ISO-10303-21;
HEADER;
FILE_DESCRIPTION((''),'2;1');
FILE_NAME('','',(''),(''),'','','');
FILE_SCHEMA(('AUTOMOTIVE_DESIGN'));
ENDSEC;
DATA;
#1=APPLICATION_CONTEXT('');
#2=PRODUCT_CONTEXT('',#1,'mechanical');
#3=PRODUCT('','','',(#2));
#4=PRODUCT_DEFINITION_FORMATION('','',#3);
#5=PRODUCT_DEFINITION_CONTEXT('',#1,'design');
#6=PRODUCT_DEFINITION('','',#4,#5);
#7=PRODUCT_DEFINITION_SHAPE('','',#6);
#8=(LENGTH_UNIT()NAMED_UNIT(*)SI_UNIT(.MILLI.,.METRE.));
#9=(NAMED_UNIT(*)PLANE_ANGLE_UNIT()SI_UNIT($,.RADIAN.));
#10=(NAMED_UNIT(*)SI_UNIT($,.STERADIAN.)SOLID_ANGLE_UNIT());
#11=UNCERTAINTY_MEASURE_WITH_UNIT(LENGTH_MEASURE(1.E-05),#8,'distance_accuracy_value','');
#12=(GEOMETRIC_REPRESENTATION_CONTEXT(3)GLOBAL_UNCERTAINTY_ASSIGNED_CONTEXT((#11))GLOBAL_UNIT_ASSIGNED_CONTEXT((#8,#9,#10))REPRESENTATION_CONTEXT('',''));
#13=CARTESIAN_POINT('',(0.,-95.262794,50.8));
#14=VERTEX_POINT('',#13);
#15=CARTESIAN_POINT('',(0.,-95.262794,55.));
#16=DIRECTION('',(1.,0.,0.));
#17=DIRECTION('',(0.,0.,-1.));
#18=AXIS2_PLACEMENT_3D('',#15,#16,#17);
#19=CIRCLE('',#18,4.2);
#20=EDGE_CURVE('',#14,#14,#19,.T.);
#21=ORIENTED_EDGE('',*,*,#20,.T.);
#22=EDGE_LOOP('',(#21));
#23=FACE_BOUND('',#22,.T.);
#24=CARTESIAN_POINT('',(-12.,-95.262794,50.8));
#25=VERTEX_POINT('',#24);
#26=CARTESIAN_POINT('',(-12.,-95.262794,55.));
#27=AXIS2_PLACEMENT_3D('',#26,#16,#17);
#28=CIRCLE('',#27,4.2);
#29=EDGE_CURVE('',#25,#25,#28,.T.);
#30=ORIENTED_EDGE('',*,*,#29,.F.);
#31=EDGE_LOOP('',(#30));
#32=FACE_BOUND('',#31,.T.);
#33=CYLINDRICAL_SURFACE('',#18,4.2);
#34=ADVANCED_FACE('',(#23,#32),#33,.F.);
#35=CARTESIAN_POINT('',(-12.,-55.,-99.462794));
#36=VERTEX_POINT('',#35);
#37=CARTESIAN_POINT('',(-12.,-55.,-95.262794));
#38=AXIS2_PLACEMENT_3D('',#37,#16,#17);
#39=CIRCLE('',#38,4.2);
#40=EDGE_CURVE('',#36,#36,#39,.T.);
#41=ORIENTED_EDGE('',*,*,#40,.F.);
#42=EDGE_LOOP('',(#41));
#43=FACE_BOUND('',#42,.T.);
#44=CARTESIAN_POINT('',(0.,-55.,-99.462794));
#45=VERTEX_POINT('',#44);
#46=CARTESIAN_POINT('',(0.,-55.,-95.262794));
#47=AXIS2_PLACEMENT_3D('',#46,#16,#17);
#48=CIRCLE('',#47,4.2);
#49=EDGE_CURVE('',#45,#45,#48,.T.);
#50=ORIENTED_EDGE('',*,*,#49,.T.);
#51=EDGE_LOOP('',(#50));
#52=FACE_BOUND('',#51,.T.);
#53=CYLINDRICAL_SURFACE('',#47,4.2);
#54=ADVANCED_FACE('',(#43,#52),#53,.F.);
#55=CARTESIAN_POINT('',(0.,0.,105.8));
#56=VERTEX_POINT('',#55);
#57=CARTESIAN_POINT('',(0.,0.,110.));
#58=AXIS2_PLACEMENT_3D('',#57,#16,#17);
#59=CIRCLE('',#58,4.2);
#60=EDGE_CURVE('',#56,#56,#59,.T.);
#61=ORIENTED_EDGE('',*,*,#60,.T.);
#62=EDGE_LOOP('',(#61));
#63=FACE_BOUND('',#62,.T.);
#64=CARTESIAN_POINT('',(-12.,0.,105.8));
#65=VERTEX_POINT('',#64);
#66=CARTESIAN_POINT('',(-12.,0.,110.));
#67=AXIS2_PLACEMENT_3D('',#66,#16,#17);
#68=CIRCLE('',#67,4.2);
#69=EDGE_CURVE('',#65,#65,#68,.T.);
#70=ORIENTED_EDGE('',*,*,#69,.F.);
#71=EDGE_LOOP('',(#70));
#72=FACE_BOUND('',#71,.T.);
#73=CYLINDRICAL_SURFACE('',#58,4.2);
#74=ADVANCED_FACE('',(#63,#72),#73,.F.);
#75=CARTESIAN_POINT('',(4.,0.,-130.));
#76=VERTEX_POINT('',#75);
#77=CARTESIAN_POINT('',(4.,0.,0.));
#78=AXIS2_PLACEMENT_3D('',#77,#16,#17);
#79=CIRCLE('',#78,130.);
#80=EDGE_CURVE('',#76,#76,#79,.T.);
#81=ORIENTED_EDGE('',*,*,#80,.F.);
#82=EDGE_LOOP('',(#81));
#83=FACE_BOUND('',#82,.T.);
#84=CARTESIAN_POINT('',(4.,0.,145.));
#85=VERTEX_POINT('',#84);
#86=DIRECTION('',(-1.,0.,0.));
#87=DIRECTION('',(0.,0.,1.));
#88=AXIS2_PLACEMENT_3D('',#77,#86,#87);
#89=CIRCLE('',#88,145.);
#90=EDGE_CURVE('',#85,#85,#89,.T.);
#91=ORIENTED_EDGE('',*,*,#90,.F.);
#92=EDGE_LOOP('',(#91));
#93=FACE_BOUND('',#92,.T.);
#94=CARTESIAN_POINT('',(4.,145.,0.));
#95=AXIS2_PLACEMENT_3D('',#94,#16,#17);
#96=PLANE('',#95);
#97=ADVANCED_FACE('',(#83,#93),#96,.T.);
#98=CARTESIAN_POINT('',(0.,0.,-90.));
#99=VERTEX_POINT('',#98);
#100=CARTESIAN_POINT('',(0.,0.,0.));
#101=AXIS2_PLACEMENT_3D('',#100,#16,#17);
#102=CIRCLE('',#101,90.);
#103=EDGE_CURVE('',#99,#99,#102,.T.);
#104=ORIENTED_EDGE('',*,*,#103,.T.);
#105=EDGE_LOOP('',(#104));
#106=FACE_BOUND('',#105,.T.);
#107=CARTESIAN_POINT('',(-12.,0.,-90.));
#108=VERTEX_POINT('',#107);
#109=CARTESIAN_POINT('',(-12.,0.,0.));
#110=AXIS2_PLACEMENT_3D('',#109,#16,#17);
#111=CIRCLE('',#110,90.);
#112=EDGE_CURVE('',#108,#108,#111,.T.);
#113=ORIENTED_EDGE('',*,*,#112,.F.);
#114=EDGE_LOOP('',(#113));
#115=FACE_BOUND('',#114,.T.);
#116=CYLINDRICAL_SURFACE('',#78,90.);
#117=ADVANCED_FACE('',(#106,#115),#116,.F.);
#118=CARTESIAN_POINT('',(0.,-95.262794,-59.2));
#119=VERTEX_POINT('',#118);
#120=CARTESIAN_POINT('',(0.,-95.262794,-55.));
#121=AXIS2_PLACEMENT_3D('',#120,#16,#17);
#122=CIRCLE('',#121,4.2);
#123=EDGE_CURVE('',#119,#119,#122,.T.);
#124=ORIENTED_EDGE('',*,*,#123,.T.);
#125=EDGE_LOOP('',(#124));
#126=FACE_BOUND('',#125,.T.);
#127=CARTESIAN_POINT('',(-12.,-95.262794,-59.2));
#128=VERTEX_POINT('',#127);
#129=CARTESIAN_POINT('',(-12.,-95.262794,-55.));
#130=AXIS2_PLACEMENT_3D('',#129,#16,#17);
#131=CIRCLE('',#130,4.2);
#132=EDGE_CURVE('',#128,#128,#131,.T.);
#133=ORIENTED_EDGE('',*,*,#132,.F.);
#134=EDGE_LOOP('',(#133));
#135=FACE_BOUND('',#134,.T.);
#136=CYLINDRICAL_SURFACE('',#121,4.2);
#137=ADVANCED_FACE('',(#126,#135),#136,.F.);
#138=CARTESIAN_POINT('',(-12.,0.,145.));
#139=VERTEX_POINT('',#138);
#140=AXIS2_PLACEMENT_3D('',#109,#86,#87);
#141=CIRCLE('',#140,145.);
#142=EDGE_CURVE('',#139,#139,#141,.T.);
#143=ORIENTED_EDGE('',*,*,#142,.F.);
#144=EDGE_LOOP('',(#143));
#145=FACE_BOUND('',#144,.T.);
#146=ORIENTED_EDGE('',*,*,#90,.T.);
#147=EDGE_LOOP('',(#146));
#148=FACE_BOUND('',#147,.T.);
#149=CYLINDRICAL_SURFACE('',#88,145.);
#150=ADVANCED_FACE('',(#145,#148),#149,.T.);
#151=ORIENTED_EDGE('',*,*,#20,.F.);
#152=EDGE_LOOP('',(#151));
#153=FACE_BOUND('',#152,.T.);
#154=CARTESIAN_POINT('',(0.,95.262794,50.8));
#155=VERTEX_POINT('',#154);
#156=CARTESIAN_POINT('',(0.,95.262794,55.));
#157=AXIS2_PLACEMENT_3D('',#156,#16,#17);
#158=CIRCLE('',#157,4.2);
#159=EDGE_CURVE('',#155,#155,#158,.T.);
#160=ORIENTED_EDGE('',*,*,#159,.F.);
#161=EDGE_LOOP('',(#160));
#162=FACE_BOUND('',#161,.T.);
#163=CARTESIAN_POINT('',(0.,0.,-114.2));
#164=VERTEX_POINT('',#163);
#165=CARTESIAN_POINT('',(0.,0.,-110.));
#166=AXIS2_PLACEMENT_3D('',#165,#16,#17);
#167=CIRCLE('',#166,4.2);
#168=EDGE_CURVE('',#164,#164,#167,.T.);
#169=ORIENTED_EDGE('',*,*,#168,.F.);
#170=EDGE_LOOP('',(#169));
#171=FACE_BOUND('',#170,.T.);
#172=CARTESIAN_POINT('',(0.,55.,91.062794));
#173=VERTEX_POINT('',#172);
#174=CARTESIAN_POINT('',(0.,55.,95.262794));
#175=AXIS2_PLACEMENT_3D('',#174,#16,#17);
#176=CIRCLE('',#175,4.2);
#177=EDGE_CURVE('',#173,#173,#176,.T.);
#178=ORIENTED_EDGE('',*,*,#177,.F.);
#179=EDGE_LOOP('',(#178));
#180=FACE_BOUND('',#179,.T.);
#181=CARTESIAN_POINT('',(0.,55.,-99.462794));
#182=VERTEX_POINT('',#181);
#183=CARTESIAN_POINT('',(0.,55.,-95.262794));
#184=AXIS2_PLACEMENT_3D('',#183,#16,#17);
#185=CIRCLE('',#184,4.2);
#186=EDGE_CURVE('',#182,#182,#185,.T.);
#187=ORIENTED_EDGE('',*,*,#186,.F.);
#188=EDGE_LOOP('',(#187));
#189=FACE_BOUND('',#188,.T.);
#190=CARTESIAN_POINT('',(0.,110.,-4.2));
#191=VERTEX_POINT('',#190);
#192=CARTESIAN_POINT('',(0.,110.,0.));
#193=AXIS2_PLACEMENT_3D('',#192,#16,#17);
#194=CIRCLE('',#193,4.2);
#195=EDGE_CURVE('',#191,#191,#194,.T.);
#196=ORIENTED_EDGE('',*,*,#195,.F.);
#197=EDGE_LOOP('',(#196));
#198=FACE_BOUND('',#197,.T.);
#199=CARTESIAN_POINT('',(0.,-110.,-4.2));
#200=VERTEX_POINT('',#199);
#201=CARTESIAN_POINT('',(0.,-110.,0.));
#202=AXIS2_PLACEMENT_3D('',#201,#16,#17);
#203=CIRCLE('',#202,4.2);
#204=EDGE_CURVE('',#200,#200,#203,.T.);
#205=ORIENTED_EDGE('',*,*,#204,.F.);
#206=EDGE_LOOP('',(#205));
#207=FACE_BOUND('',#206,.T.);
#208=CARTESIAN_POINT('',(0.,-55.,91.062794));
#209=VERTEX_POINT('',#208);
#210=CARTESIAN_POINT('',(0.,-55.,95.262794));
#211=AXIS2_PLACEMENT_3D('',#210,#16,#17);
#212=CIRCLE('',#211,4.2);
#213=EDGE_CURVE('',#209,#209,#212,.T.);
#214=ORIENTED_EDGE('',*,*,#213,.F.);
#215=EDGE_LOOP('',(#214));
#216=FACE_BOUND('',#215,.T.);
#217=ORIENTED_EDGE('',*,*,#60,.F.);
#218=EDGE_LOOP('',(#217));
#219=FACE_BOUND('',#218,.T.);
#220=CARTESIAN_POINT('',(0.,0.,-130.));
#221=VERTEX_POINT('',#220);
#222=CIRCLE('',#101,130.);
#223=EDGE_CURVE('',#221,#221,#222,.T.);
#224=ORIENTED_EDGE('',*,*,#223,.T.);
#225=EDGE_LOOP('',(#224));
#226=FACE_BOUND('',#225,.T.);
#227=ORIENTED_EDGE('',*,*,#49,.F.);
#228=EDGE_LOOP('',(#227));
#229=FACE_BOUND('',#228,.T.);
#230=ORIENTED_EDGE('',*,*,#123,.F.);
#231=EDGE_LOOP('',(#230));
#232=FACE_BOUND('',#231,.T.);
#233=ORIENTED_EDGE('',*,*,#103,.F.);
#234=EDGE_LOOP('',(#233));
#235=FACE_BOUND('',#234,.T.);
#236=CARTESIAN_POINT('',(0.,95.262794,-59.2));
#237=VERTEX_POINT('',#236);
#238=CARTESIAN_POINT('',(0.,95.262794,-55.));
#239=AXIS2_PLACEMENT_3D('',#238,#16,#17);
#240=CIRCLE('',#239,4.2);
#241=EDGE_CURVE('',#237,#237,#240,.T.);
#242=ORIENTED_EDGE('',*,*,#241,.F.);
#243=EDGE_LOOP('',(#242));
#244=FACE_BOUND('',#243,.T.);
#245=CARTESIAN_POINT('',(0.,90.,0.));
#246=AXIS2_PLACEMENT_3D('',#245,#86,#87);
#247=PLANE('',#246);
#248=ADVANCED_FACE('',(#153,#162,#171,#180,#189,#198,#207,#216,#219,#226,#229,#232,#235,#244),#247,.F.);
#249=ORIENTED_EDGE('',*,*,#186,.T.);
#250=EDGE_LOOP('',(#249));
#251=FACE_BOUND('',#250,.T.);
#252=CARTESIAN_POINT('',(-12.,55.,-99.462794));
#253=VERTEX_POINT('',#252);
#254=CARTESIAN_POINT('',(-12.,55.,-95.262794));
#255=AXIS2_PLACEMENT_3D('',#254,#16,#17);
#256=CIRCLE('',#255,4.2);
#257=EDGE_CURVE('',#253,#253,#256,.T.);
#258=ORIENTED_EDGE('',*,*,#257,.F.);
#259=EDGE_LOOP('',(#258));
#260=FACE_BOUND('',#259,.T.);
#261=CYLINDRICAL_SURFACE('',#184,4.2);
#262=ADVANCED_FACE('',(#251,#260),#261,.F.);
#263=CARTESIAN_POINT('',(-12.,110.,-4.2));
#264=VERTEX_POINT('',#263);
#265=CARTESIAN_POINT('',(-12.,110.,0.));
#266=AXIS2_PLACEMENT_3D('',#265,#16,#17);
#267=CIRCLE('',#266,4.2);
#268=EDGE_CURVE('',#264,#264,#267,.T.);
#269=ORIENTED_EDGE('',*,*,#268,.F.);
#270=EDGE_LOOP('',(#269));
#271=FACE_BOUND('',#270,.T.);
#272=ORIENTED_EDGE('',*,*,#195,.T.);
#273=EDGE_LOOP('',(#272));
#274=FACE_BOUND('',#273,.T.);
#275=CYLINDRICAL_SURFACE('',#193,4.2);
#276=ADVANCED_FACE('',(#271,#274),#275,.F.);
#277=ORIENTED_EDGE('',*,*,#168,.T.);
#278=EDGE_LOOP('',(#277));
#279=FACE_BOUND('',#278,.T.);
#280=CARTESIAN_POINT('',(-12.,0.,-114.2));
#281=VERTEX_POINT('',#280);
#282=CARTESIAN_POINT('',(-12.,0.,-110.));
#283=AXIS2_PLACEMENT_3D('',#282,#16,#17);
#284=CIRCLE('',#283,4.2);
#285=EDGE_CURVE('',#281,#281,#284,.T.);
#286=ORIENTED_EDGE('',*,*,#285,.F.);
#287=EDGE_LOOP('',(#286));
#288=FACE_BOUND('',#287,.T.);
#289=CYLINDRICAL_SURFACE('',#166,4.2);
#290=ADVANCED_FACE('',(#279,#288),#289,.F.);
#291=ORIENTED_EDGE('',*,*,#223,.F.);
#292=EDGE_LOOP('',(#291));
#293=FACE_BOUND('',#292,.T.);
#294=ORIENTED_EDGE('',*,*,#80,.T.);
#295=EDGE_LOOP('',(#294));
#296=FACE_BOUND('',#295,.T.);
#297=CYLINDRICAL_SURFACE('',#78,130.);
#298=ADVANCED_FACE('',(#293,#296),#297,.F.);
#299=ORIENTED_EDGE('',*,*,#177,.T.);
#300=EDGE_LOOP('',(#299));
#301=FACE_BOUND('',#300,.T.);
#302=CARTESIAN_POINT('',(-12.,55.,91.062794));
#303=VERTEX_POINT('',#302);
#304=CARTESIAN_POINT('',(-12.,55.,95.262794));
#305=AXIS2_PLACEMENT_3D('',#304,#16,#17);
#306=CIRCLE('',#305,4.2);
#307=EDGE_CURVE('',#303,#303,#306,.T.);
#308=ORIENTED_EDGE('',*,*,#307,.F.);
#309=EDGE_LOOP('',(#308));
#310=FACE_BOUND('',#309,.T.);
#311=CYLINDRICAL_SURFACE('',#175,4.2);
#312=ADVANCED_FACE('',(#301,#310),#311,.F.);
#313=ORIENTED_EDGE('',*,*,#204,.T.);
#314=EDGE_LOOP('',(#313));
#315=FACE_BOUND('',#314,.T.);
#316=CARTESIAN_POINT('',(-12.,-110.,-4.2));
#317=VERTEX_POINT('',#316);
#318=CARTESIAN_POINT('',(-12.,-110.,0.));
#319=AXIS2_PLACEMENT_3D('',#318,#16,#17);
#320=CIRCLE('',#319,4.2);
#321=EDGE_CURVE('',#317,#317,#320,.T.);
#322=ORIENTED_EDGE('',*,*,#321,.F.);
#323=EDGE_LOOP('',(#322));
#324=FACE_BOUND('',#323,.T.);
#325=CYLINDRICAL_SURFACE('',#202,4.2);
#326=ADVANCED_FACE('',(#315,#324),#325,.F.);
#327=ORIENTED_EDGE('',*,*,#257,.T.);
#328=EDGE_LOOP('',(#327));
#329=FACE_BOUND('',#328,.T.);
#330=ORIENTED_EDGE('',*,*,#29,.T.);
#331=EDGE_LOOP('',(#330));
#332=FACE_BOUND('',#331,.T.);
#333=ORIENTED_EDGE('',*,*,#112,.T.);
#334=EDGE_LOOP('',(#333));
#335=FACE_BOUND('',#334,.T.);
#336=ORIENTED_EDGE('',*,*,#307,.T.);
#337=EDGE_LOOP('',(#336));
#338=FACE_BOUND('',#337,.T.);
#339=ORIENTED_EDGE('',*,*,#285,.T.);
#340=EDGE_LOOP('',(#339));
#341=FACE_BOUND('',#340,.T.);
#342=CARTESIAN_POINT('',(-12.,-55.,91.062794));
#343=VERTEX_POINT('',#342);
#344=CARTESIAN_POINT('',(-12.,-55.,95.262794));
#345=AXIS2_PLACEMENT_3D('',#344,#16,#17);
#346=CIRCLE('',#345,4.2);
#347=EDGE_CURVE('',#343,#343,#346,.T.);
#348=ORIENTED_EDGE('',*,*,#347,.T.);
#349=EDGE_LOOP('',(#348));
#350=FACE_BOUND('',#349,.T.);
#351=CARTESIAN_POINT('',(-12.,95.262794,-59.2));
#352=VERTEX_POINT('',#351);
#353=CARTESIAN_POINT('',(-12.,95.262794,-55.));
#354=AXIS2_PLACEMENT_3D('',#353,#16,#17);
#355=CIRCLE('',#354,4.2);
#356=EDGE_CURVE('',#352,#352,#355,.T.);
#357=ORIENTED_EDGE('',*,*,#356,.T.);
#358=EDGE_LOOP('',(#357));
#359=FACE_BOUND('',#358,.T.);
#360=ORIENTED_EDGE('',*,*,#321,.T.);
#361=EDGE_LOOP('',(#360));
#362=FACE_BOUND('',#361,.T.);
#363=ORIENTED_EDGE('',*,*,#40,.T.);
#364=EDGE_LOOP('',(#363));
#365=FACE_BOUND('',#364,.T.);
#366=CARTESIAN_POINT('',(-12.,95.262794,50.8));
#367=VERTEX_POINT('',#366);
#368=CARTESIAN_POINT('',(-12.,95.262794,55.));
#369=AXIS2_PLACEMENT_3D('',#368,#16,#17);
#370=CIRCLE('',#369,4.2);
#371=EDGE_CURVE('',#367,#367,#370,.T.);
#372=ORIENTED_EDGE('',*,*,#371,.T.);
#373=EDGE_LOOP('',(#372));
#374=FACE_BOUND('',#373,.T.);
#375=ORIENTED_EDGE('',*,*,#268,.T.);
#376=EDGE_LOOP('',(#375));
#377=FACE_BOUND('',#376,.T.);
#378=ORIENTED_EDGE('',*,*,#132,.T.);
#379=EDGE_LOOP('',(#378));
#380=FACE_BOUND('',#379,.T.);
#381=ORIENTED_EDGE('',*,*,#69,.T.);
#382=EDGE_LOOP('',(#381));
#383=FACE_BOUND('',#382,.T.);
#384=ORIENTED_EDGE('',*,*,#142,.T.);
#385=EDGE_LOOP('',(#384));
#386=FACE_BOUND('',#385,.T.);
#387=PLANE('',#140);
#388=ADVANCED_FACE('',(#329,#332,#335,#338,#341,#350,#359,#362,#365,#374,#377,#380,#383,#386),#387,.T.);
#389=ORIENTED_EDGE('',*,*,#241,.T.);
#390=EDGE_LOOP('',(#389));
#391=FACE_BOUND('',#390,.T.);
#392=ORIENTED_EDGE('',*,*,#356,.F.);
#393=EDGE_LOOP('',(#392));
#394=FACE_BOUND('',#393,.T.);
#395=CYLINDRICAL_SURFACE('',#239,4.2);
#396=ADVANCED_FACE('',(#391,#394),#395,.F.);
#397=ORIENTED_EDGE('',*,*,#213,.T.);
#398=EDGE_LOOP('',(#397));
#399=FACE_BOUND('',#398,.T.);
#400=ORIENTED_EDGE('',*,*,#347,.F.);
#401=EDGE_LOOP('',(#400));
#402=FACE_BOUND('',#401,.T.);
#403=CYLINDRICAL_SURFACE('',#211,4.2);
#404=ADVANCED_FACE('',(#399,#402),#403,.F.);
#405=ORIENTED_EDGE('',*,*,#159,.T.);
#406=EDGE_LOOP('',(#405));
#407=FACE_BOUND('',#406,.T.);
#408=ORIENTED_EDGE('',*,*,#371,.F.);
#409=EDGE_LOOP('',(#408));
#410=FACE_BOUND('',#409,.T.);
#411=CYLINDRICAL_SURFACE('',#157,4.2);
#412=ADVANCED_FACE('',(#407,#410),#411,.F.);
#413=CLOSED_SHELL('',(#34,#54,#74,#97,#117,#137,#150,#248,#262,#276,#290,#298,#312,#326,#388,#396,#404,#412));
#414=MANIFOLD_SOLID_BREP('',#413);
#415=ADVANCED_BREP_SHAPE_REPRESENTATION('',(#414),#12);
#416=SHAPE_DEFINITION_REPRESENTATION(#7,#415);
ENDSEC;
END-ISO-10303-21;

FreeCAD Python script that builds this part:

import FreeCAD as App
import Part
import Sketcher
from FreeCAD import Vector
Q = App.Units.Quantity


def add_polygon(sketch, points):
    """Adds a closed chain of lines whose ends are joined by coincident constraints."""
    first, n = sketch.GeometryCount, len(points)
    for a, b in zip(points, points[1:] + points[:1]):
        sketch.addGeometry(Part.LineSegment(App.Vector(*a, 0), App.Vector(*b, 0)), False)
    for i in range(n):
        sketch.addConstraint(Sketcher.Constraint("Coincident", first + i, 2, first + (i + 1) % n, 1))

doc = App.newDocument("Part")
body = doc.addObject("PartDesign::Body", "Body")

# Sketch on XY plane
sketch1 = body.newObject("Sketcher::SketchObject", "Sketch")
sketch1.AttachmentSupport = (doc.getObject("XY_Plane"), [""])
sketch1.MapMode = "FlatFace"
add_polygon(sketch1, [(4, 145), (4, 0), (-12, 0), (-12, 145)])  # lines 0-3
sketch1.addConstraint([
    Sketcher.Constraint("Vertical", 0),
    Sketcher.Constraint("Horizontal", 1),
    Sketcher.Constraint("Vertical", 2),
    Sketcher.Constraint("Horizontal", 3),
    Sketcher.Constraint("PointOnObject", 0, 2, -1),
    Sketcher.Constraint("DistanceX", 1, 2, 1, 1, Q("16 mm")),
    Sketcher.Constraint("DistanceY", 0, 2, 0, 1, Q("145 mm")),
    Sketcher.Constraint("DistanceX", -1, 1, 0, 2, Q("4 mm")),
])
revolution = body.newObject("PartDesign::Revolution", "Revolution")
revolution.Profile = sketch1
revolution.ReferenceAxis = (sketch1, ["H_Axis"])
revolution.Angle = 360

# Sketch on YZ plane
sketch2 = body.newObject("Sketcher::SketchObject", "Sketch001")
sketch2.AttachmentSupport = (doc.getObject("YZ_Plane"), [""])
sketch2.MapMode = "FlatFace"
sketch2.AttachmentOffset = App.Placement(Vector(0, 0, 4), App.Rotation())
sketch2.addGeometry(Part.Circle(Vector(0, 0, 0), Vector(0, 0, 1), 90), False)
sketch2.addConstraint([
    Sketcher.Constraint("Coincident", 0, 3, -1, 1),
    Sketcher.Constraint("Diameter", 0, Q("180 mm")),
])
doc.recompute()
hole = body.newObject("PartDesign::Hole", "Hole")
hole.Profile = sketch2
hole.ThreadType = "None"
hole.Diameter = 180
hole.DepthType = "ThroughAll"
hole.HoleCutType = "Counterbore"
hole.HoleCutDiameter = 260
hole.HoleCutDepth = 4

# Sketch on YZ plane
sketch3 = body.newObject("Sketcher::SketchObject", "Sketch002")
sketch3.AttachmentSupport = (doc.getObject("YZ_Plane"), [""])
sketch3.MapMode = "FlatFace"
sketch3.addGeometry([
    Part.Circle(Vector(0, -110, 0), Vector(0, 0, 1), 4.2),  # 0
    Part.Circle(Vector(55, -95.3, 0), Vector(0, 0, 1), 4.2),  # 1
    Part.Circle(Vector(95.3, -55, 0), Vector(0, 0, 1), 4.2),  # 2
    Part.Circle(Vector(110, 0, 0), Vector(0, 0, 1), 4.2),  # 3
    Part.Circle(Vector(95.3, 55, 0), Vector(0, 0, 1), 4.2),  # 4
    Part.Circle(Vector(55, 95.3, 0), Vector(0, 0, 1), 4.2),  # 5
    Part.Circle(Vector(0, 110, 0), Vector(0, 0, 1), 4.2),  # 6
    Part.Circle(Vector(-55, 95.3, 0), Vector(0, 0, 1), 4.2),  # 7
    Part.Circle(Vector(-95.3, 55, 0), Vector(0, 0, 1), 4.2),  # 8
    Part.Circle(Vector(-110, 0, 0), Vector(0, 0, 1), 4.2),  # 9
    Part.Circle(Vector(-95.3, -55, 0), Vector(0, 0, 1), 4.2),  # 10
    Part.Circle(Vector(-55, -95.3, 0), Vector(0, 0, 1), 4.2),  # 11
], False)
sketch3.addConstraint([
    Sketcher.Constraint("Equal", 0, 1),
    Sketcher.Constraint("Equal", 1, 2),
    Sketcher.Constraint("Equal", 2, 3),
    Sketcher.Constraint("Equal", 3, 4),
    Sketcher.Constraint("Equal", 4, 5),
    Sketcher.Constraint("Equal", 5, 6),
    Sketcher.Constraint("Equal", 6, 7),
    Sketcher.Constraint("Equal", 7, 8),
    Sketcher.Constraint("Equal", 8, 9),
    Sketcher.Constraint("Equal", 9, 10),
    Sketcher.Constraint("Equal", 10, 11),
    Sketcher.Constraint("Symmetric", 0, 3, 6, 3, -1, 1),
    Sketcher.Constraint("Symmetric", 1, 3, 7, 3, -1, 1),
    Sketcher.Constraint("Symmetric", 2, 3, 8, 3, -1, 1),
    Sketcher.Constraint("Symmetric", 3, 3, 9, 3, -1, 1),
    Sketcher.Constraint("Symmetric", 4, 3, 10, 3, -1, 1),
    Sketcher.Constraint("Symmetric", 5, 3, 11, 3, -1, 1),
    Sketcher.Constraint("Symmetric", 5, 3, 7, 3, -2),
    Sketcher.Constraint("Symmetric", 4, 3, 8, 3, -2),
    Sketcher.Constraint("PointOnObject", 0, 3, -2),
    Sketcher.Constraint("PointOnObject", 3, 3, -1),
    Sketcher.Constraint("Diameter", 0, Q("8.4 mm")),
    Sketcher.Constraint("DistanceY", 0, 3, -1, 1, Q("110 mm")),
    Sketcher.Constraint("DistanceX", -1, 1, 1, 3, Q("55 mm")),
    Sketcher.Constraint("DistanceY", 2, 3, -1, 1, Q("55 mm")),
    Sketcher.Constraint("DistanceX", -1, 1, 3, 3, Q("110 mm")),
    Sketcher.Constraint("DistanceY", 1, 3, 5, 3, Q("190.525589 mm")),
    Sketcher.Constraint("DistanceX", 8, 3, 4, 3, Q("190.525589 mm")),
])
doc.recompute()
hole2 = body.newObject("PartDesign::Hole", "Hole001")
hole2.Profile = sketch3
hole2.ThreadType = "None"
hole2.Diameter = 8.4
hole2.DepthType = "ThroughAll"

doc.recompute()
